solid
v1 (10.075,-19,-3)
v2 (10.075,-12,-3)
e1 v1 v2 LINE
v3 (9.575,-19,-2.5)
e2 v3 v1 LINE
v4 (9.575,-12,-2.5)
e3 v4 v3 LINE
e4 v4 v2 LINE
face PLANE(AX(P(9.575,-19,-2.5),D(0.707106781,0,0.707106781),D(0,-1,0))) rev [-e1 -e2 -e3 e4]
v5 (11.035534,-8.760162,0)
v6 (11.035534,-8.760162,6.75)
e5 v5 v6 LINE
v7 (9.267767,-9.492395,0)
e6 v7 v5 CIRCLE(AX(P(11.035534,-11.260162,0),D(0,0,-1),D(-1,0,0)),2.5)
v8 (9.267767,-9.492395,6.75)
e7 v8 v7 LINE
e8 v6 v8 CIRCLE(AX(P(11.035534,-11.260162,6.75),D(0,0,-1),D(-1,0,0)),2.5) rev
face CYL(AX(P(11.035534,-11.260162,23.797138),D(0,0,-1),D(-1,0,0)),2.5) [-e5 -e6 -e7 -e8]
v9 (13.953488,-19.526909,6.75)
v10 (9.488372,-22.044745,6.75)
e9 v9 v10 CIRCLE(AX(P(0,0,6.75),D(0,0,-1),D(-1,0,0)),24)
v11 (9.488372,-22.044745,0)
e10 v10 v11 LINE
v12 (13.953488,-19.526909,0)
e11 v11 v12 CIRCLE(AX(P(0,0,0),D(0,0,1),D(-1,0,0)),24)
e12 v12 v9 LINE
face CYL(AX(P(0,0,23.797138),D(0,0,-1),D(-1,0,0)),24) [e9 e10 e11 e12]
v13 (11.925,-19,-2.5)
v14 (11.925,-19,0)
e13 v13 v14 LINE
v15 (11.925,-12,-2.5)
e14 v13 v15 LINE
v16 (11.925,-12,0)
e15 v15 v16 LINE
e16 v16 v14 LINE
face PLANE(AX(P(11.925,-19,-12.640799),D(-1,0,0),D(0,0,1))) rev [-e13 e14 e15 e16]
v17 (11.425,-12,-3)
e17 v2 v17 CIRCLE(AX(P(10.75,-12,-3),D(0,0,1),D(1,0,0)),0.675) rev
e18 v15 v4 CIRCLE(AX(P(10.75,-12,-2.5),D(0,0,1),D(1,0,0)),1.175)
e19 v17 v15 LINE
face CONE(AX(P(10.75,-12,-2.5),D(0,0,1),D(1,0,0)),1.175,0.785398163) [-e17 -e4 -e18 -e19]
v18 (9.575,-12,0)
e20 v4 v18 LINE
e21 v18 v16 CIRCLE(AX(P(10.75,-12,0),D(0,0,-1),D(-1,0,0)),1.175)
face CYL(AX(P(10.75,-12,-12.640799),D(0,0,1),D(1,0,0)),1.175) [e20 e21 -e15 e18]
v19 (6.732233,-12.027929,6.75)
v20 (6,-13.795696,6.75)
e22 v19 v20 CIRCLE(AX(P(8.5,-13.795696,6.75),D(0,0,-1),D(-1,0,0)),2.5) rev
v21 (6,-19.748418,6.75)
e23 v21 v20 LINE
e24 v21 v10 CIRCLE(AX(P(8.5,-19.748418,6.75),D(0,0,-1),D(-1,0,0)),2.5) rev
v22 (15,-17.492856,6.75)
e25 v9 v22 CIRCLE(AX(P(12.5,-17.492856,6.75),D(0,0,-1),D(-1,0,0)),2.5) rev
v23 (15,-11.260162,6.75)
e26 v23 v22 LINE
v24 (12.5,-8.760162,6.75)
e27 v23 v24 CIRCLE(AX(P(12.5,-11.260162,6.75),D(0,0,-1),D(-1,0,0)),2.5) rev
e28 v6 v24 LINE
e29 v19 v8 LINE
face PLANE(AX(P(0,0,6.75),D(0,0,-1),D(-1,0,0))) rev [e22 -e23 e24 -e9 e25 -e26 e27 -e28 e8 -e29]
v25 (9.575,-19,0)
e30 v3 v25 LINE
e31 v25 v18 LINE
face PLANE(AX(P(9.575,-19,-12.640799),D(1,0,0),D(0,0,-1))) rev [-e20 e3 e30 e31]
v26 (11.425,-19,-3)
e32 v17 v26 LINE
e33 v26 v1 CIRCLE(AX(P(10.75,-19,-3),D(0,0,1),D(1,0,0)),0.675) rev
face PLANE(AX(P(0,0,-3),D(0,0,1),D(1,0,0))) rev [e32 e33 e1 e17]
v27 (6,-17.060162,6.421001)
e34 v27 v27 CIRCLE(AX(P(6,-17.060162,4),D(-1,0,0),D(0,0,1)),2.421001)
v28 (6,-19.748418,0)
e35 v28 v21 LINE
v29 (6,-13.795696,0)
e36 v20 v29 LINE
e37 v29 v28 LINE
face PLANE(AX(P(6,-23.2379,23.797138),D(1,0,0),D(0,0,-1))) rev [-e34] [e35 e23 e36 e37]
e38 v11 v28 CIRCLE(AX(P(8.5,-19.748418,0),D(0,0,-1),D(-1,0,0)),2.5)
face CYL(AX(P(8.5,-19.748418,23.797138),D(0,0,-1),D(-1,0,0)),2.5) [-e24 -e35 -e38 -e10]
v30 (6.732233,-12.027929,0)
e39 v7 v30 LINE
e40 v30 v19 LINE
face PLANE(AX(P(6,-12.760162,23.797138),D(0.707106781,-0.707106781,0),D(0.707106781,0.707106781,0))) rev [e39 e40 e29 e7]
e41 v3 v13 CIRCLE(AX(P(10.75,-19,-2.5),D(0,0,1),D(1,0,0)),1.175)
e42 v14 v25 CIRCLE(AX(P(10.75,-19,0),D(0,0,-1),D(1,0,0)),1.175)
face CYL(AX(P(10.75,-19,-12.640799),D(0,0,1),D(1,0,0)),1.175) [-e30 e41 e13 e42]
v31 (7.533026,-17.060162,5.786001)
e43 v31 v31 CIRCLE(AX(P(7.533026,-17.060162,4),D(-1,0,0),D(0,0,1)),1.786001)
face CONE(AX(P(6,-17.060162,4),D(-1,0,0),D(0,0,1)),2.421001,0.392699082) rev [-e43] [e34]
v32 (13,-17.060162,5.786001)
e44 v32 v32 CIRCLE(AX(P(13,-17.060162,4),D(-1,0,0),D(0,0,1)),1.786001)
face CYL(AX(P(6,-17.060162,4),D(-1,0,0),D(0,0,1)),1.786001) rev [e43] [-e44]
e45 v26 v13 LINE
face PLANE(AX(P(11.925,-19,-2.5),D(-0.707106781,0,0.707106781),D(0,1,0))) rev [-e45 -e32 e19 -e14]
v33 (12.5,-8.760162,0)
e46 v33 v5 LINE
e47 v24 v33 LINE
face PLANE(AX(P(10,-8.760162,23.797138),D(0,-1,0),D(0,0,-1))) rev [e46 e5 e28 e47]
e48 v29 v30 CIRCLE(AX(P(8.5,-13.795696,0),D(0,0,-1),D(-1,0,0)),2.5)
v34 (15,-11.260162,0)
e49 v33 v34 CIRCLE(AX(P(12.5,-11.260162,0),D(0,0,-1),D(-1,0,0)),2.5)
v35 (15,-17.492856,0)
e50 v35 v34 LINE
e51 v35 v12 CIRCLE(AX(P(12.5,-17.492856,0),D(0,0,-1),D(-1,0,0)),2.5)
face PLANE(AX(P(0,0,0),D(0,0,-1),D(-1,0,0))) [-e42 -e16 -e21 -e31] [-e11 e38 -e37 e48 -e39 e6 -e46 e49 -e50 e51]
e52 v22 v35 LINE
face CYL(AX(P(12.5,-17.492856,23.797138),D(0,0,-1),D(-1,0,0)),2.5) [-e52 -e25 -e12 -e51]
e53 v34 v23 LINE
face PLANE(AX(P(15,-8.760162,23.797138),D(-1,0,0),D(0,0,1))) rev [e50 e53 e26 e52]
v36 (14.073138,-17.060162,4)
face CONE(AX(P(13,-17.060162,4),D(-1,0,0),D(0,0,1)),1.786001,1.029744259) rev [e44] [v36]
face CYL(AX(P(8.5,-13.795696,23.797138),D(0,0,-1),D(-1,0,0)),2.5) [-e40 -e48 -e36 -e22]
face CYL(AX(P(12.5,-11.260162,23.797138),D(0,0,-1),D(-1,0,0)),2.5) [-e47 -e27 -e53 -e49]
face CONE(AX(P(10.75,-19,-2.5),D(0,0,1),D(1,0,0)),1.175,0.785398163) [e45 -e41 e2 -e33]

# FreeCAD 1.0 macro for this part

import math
import FreeCAD as App
import Part
import Sketcher
Q = App.Units.Quantity


def edges_at(feature, points):
    """Names of the edges that pass closest to the given points."""
    edges = feature.Shape.Edges
    near = lambda p: min(range(len(edges)), key=lambda i: edges[i].distToShape(Part.Vertex(*p))[0])
    return sorted({f"Edge{near(p) + 1}" for p in points})

doc = App.newDocument("Part")
params = doc.addObject("Spreadsheet::Sheet", "Params")
for row, (alias, value) in enumerate([
    ("sketch1_radius", "24 mm"),
    ("sketch1_width", "5 mm"),
    ("pad1_length", "6.75 mm"),
    ("fillet_radius", "2.5 mm"),
    ("hole_diameter", "3.572002 mm"),
    ("hole_depth", "7 mm"),
    ("hole_csink_diameter", "4.842002 mm"),
    ("sketch3_height", "7 mm"),
    ("pad2_length", "3 mm"),
    ("chamfer_size", "0.5 mm"),
], start=1):
    params.set(f"A{row}", alias)
    params.set(f"B{row}", "=" + value)
    params.setAlias(f"B{row}", alias)

body = doc.addObject("PartDesign::Body", "Body")

sketch1 = body.newObject("Sketcher::SketchObject", "Sketch")
sketch1.AttachmentSupport = (doc.getObject("XY_Plane"), [""])
sketch1.MapMode = "FlatFace"
sketch1.addGeometry([
    Part.LineSegment(App.Vector(6, -12.760162, 0), App.Vector(6, -23.2379, 0)),
    Part.ArcOfCircle(Part.Circle(App.Vector(0, 0, 0), App.Vector(0, 0, 1), 24), math.radians(-75.522488), math.radians(-51.317813)),
    Part.LineSegment(App.Vector(15, -18.734994, 0), App.Vector(15, -8.760162, 0)),
    Part.LineSegment(App.Vector(15, -8.760162, 0), App.Vector(10, -8.760162, 0)),
    Part.LineSegment(App.Vector(10, -8.760162, 0), App.Vector(6, -12.760162, 0)),
], False)
sketch1.addConstraint([
    Sketcher.Constraint("Coincident", 0, 2, 1, 1),
    Sketcher.Constraint("Coincident", 1, 2, 2, 1),
    Sketcher.Constraint("Coincident", 2, 2, 3, 1),
    Sketcher.Constraint("Coincident", 3, 2, 4, 1),
    Sketcher.Constraint("Coincident", 4, 2, 0, 1),
    Sketcher.Constraint("Vertical", 0),
    Sketcher.Constraint("Vertical", 2),
    Sketcher.Constraint("Horizontal", 3),
    Sketcher.Constraint("Coincident", 1, 3, -1, 1),
    Sketcher.Constraint("Radius", 1, Q("24 mm")),
    Sketcher.Constraint("DistanceX", 3, 2, 3, 1, Q("5 mm")),
    Sketcher.Constraint("Angle", 4, Q("-135 deg")),
    Sketcher.Constraint("DistanceX", -1, 1, 0, 2, Q("6 mm")),
    Sketcher.Constraint("DistanceX", -1, 1, 1, 2, Q("15 mm")),
    Sketcher.Constraint("DistanceY", 0, 2, 0, 1, Q("10.477738 mm")),
])
sketch1.setExpression("Constraints[9]", "Params.sketch1_radius")
sketch1.setExpression("Constraints[10]", "Params.sketch1_width")
pad1 = body.newObject("PartDesign::Pad", "Pad")
pad1.Profile = sketch1
pad1.setExpression("Length", "Params.pad1_length")
doc.recompute()

fillet = body.newObject("PartDesign::Fillet", "Fillet")
fillet.Base = (pad1, edges_at(pad1, [
    (6, -23.238, 3.375),
    (6, -12.76, 3.375),
    (10, -8.76, 3.375),
    (15, -8.76, 3.375),
    (15, -18.735, 3.375),
]))
fillet.setExpression("Radius", "Params.fillet_radius")

sketch2 = body.newObject("Sketcher::SketchObject", "Sketch001")
sketch2.AttachmentSupport = (doc.getObject("YZ_Plane"), [""])
sketch2.MapMode = "FlatFace"
sketch2.AttachmentOffset = App.Placement(App.Vector(0, 0, 6), App.Rotation())
sketch2.addGeometry(Part.Circle(App.Vector(-17.060162, 4, 0), App.Vector(0, 0, 1), 1.786001), False)
sketch2.addConstraint([
    Sketcher.Constraint("Diameter", 0, Q("3.572002 mm")),
    Sketcher.Constraint("DistanceY", -1, 1, 0, 3, Q("4 mm")),
    Sketcher.Constraint("DistanceX", 0, 3, -1, 1, Q("17.060162 mm")),
])
doc.recompute()
hole = body.newObject("PartDesign::Hole", "Hole")
hole.Profile = sketch2
hole.ThreadType = "None"
hole.setExpression("Diameter", "Params.hole_diameter")
hole.DepthType = "Dimension"
hole.setExpression("Depth", "Params.hole_depth")
hole.DrillPoint = "Angled"
hole.DrillPointAngle = 118
hole.HoleCutType = "Countersink"
hole.setExpression("HoleCutDiameter", "Params.hole_csink_diameter")
hole.HoleCutCountersinkAngle = 45
hole.Reversed = True

sketch3 = body.newObject("Sketcher::SketchObject", "Sketch002")
sketch3.AttachmentSupport = (doc.getObject("XY_Plane"), [""])
sketch3.MapMode = "FlatFace"
sketch3.addGeometry([
    Part.LineSegment(App.Vector(9.575, -19, 0), App.Vector(9.575, -12, 0)),
    Part.ArcOfCircle(Part.Circle(App.Vector(10.75, -12, 0), App.Vector(0, 0, 1), 1.175), math.radians(0), math.radians(180)),
    Part.LineSegment(App.Vector(11.925, -12, 0), App.Vector(11.925, -19, 0)),
    Part.ArcOfCircle(Part.Circle(App.Vector(10.75, -19, 0), App.Vector(0, 0, 1), 1.175), math.radians(180), math.radians(360)),
], False)
sketch3.addConstraint([
    Sketcher.Constraint("Tangent", 0, 2, 1, 2),
    Sketcher.Constraint("Tangent", 1, 1, 2, 1),
    Sketcher.Constraint("Tangent", 2, 2, 3, 2),
    Sketcher.Constraint("Tangent", 3, 1, 0, 1),
    Sketcher.Constraint("Vertical", 0),
    Sketcher.Constraint("Vertical", 2),
    Sketcher.Constraint("DistanceY", 0, 1, 0, 2, Q("7 mm")),
    Sketcher.Constraint("DistanceY", 1, 3, -1, 1, Q("12 mm")),
    Sketcher.Constraint("Radius", 1, Q("1.175 mm")),
    Sketcher.Constraint("DistanceX", -1, 1, 1, 3, Q("10.75 mm")),
])
sketch3.setExpression("Constraints[6]", "Params.sketch3_height")
pad2 = body.newObject("PartDesign::Pad", "Pad001")
pad2.Profile = sketch3
pad2.setExpression("Length", "Params.pad2_length")
pad2.Reversed = True
doc.recompute()

chamfer = body.newObject("PartDesign::Chamfer", "Chamfer")
chamfer.Base = (pad2, edges_at(pad2, [
    (11.925, -15.5, -3),
    (10.75, -10.825, -3),
    (9.575, -15.5, -3),
    (10.75, -20.175, -3),
]))
chamfer.setExpression("Size", "Params.chamfer_size")

doc.recompute()
